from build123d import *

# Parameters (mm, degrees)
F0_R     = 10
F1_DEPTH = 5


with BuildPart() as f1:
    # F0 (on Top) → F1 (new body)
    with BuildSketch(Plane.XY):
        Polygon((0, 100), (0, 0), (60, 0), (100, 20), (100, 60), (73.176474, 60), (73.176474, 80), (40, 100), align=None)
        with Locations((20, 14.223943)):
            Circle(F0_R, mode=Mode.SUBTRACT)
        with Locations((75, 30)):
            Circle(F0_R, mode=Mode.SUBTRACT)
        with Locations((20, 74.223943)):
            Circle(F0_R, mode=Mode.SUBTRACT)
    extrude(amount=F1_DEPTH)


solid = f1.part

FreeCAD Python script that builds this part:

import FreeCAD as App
import Part
import Sketcher

V = App.Vector


def add_polygon(sketch, points):
    """Adds a closed chain of lines whose ends are joined by coincident constraints."""
    first, n = sketch.GeometryCount, len(points)
    for a, b in zip(points, points[1:] + points[:1]):
        sketch.addGeometry(Part.LineSegment(App.Vector(*a, 0), App.Vector(*b, 0)), False)
    for i in range(n):
        sketch.addConstraint(Sketcher.Constraint("Coincident", first + i, 2, first + (i + 1) % n, 1))

doc = App.newDocument("Part")
body = doc.addObject("PartDesign::Body", "Body")

# Sketch on XY plane
sketch1 = doc.addObject("Sketcher::SketchObject", "Sketch")
body.addObject(sketch1)
sketch1.AttachmentSupport = (doc.XY_Plane, [""])
sketch1.MapMode = "FlatFace"
add_polygon(sketch1, [(0, 100), (0, 0), (60, 0), (100, 20), (100, 60), (73, 60), (73, 80), (40, 100)])  # lines 0-7
sketch1.addGeometry(Part.Circle(V(20, 14, 0), V(0, 0, 1), 10), False)  # 8
sketch1.addGeometry(Part.Circle(V(75, 30, 0), V(0, 0, 1), 10), False)  # 9
sketch1.addGeometry(Part.Circle(V(20, 74, 0), V(0, 0, 1), 10), False)  # 10
sketch1.addConstraint([
    Sketcher.Constraint("Vertical", 0),
    Sketcher.Constraint("Horizontal", 1),
    Sketcher.Constraint("Vertical", 3),
    Sketcher.Constraint("Horizontal", 4),
    Sketcher.Constraint("Vertical", 5),
    Sketcher.Constraint("Horizontal", 7),
    Sketcher.Constraint("Coincident", 0, 2, -1, 1),
    Sketcher.Constraint("Equal", 8, 9),
    Sketcher.Constraint("Equal", 9, 10),
    Sketcher.Constraint("Vertical", 8, 3, 10, 3),
    Sketcher.Constraint("Equal", 7, 3),
    Sketcher.Constraint("Diameter", 8, 20.0),
    Sketcher.Constraint("DistanceX", 1, 1, 1, 2, 60.0),
    Sketcher.Constraint("DistanceX", 7, 2, 7, 1, 40.0),
    Sketcher.Constraint("DistanceY", 0, 2, 0, 1, 100.0),
    Sketcher.Constraint("DistanceY", 5, 1, 5, 2, 20.0),
    Sketcher.Constraint("DistanceX", -1, 1, 8, 3, 20.0),
    Sketcher.Constraint("DistanceX", -1, 1, 9, 3, 75.0),
    Sketcher.Constraint("DistanceY", -1, 1, 9, 3, 30.0),
    Sketcher.Constraint("DistanceX", -1, 1, 2, 2, 100.0),
    Sketcher.Constraint("DistanceY", -1, 1, 2, 2, 20.0),
    Sketcher.Constraint("DistanceY", 8, 3, 10, 3, 60.0),
    Sketcher.Constraint("Distance", 6, 38.738591),
    Sketcher.Constraint("DistanceY", -1, 1, 8, 3, 14.223943),
])
pad1 = doc.addObject("PartDesign::Pad", "Pad")
body.addObject(pad1)
pad1.Profile = sketch1
pad1.Length = 5

doc.recompute()
